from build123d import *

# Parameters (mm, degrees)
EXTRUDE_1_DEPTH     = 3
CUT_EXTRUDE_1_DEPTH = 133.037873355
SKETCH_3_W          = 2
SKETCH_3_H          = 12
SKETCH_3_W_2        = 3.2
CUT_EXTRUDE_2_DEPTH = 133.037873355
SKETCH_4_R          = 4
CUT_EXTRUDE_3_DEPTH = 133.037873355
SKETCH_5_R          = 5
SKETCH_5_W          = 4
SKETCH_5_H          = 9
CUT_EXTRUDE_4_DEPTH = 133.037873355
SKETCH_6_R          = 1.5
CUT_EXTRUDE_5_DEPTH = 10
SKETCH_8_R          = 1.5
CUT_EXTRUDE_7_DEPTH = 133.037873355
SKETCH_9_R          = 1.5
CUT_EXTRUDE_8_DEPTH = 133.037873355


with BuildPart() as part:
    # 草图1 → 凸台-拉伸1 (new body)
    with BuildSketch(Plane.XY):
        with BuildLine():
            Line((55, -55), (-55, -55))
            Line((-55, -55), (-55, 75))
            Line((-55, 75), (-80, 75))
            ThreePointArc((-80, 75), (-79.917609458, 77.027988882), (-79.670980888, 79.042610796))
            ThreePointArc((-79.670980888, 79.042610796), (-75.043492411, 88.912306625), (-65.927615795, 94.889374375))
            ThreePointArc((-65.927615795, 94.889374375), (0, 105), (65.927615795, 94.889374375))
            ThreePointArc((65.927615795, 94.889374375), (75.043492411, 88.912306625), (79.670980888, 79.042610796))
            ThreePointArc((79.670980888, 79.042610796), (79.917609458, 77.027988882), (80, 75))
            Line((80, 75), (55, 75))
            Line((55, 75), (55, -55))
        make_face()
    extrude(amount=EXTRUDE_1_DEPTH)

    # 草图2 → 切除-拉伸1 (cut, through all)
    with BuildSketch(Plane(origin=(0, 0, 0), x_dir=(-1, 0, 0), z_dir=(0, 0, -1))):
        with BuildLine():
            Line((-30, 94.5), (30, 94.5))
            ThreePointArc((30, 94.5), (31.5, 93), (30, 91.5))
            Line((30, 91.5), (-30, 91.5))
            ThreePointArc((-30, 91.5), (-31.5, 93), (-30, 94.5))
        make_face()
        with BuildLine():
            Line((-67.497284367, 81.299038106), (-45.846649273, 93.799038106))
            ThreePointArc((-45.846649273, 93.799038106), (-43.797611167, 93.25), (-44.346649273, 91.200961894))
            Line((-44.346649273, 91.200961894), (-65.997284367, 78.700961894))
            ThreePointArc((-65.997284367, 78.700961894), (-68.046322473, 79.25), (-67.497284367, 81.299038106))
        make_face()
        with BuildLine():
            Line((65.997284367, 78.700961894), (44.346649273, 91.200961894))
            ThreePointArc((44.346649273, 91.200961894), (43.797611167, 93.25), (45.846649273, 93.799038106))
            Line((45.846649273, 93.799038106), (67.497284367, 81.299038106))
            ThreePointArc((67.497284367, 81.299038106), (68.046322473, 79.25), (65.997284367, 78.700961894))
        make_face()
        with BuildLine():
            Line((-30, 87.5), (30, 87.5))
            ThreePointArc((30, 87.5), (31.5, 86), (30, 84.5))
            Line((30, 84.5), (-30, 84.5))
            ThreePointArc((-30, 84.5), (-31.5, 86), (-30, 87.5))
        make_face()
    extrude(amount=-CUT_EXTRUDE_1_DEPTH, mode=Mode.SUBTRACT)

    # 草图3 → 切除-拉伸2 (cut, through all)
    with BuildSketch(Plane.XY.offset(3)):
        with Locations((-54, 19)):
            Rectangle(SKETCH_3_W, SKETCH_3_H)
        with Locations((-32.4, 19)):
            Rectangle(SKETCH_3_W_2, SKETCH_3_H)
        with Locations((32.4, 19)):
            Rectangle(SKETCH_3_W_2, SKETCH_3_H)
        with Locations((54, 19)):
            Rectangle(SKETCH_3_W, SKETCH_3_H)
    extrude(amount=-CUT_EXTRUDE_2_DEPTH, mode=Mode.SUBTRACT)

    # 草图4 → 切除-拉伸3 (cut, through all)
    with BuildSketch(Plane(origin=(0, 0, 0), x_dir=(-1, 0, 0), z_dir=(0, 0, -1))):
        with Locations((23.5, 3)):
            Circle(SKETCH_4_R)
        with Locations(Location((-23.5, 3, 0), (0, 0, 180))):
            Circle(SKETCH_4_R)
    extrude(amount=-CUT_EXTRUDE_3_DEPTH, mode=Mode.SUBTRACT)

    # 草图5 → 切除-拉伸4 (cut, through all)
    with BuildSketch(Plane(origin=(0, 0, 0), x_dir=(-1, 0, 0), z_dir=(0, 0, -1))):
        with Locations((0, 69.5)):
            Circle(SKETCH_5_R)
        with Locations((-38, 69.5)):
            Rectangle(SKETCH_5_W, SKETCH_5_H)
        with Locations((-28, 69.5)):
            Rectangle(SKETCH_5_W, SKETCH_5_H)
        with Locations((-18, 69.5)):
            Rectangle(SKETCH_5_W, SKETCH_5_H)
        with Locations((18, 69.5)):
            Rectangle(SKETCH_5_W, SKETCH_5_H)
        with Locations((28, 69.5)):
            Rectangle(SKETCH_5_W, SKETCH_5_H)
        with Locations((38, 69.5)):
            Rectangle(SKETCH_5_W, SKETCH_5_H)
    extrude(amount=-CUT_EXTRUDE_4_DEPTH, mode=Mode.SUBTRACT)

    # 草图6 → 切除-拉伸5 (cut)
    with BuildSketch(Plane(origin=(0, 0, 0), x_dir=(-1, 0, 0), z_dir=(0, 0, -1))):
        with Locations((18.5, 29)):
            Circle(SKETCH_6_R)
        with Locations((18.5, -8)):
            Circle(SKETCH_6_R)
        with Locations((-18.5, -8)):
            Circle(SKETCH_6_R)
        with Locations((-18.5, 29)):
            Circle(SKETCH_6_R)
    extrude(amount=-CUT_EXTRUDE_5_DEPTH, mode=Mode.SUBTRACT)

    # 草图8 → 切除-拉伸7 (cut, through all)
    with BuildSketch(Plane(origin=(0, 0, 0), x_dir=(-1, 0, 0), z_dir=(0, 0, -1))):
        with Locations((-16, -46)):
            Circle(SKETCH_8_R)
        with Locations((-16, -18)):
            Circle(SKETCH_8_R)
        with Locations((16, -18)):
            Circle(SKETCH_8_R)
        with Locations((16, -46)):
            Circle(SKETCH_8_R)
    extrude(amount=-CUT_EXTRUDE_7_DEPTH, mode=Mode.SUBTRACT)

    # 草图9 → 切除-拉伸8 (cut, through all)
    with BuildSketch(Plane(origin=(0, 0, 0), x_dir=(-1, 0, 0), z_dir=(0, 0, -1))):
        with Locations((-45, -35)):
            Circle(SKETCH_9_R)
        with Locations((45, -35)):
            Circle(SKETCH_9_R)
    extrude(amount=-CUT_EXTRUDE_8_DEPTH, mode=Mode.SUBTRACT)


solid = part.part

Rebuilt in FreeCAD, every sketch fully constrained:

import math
import FreeCAD as App
import Part
import Sketcher
Q = App.Units.Quantity


def add_polygon(sketch, points):
    """Adds a closed chain of lines whose ends are joined by coincident constraints."""
    first, n = sketch.GeometryCount, len(points)
    for a, b in zip(points, points[1:] + points[:1]):
        sketch.addGeometry(Part.LineSegment(App.Vector(*a, 0), App.Vector(*b, 0)), False)
    for i in range(n):
        sketch.addConstraint(Sketcher.Constraint("Coincident", first + i, 2, first + (i + 1) % n, 1))

doc = App.newDocument("Part")
body = doc.addObject("PartDesign::Body", "Body")

# Sketch on XY plane
sketch1 = body.newObject("Sketcher::SketchObject", "Sketch")
sketch1.AttachmentSupport = (doc.getObject("XY_Plane"), [""])
sketch1.MapMode = "FlatFace"
sketch1.addGeometry([
    Part.LineSegment(App.Vector(-55, -55, 0), App.Vector(55, -55, 0)),  # 0
    Part.LineSegment(App.Vector(55, -55, 0), App.Vector(55, 75, 0)),  # 1
    Part.LineSegment(App.Vector(55, 75, 0), App.Vector(80, 75, 0)),  # 2
    Part.ArcOfCircle(Part.Circle(App.Vector(55, 75, 0), App.Vector(0, 0, 1), 25), math.radians(0), math.radians(9.305841)),  # 3
    Part.ArcOfCircle(Part.Circle(App.Vector(59.934196, 75.808522, 0), App.Vector(0, 0, 1), 20), math.radians(9.305841), math.radians(72.562157)),  # 4
    Part.ArcOfCircle(Part.Circle(App.Vector(0, -115, 0), App.Vector(0, 0, 1), 220), math.radians(72.562157), math.radians(107.437843)),  # 5
    Part.ArcOfCircle(Part.Circle(App.Vector(-59.934196, 75.808522, 0), App.Vector(0, 0, 1), 20), math.radians(107.437843), math.radians(170.694159)),  # 6
    Part.ArcOfCircle(Part.Circle(App.Vector(-55, 75, 0), App.Vector(0, 0, 1), 25), math.radians(170.694159), math.radians(180)),  # 7
    Part.LineSegment(App.Vector(-80, 75, 0), App.Vector(-55, 75, 0)),  # 8
    Part.LineSegment(App.Vector(-55, 75, 0), App.Vector(-55, -55, 0)),  # 9
], False)
sketch1.addConstraint([
    Sketcher.Constraint("Coincident", 0, 2, 1, 1),
    Sketcher.Constraint("Coincident", 1, 2, 2, 1),
    Sketcher.Constraint("Coincident", 2, 2, 3, 1),
    Sketcher.Constraint("Tangent", 3, 2, 4, 1),
    Sketcher.Constraint("Tangent", 4, 2, 5, 1),
    Sketcher.Constraint("Tangent", 5, 2, 6, 1),
    Sketcher.Constraint("Tangent", 6, 2, 7, 1),
    Sketcher.Constraint("Coincident", 7, 2, 8, 1),
    Sketcher.Constraint("Coincident", 8, 2, 9, 1),
    Sketcher.Constraint("Coincident", 9, 2, 0, 1),
    Sketcher.Constraint("Horizontal", 0),
    Sketcher.Constraint("Vertical", 1),
    Sketcher.Constraint("Horizontal", 2),
    Sketcher.Constraint("Horizontal", 8),
    Sketcher.Constraint("Vertical", 9),
    Sketcher.Constraint("Coincident", 1, 2, 3, 3),
    Sketcher.Constraint("Coincident", 8, 2, 7, 3),
    Sketcher.Constraint("Equal", 4, 6),
    Sketcher.Constraint("Equal", 3, 7),
    Sketcher.Constraint("Symmetric", 4, 3, 6, 3, -2),
    Sketcher.Constraint("Horizontal", 3, 3, 7, 3),
    Sketcher.Constraint("Radius", 3, Q("25 mm")),
    Sketcher.Constraint("Radius", 4, Q("20 mm")),
    Sketcher.Constraint("Radius", 5, Q("220 mm")),
    Sketcher.Constraint("DistanceX", 0, 1, 0, 2, Q("110 mm")),
    Sketcher.Constraint("DistanceY", 1, 1, 1, 2, Q("130 mm")),
    Sketcher.Constraint("DistanceY", -1, 1, 3, 3, Q("75 mm")),
    Sketcher.Constraint("DistanceY", 5, 3, -1, 1, Q("115 mm")),
])
pad1 = body.newObject("PartDesign::Pad", "Pad")
pad1.Profile = sketch1
pad1.Length = 3

# Sketch on XY plane
sketch2 = body.newObject("Sketcher::SketchObject", "Sketch001")
sketch2.AttachmentSupport = (doc.getObject("XY_Plane"), [""])
sketch2.MapMode = "FlatFace"
sketch2.addGeometry([
    Part.LineSegment(App.Vector(-30, 94.5, 0), App.Vector(30, 94.5, 0)),  # 0
    Part.ArcOfCircle(Part.Circle(App.Vector(30, 93, 0), App.Vector(0, 0, 1), 1.5), math.radians(-90), math.radians(90)),  # 1
    Part.LineSegment(App.Vector(30, 91.5, 0), App.Vector(-30, 91.5, 0)),  # 2
    Part.ArcOfCircle(Part.Circle(App.Vector(-30, 93, 0), App.Vector(0, 0, 1), 1.5), math.radians(90), math.radians(270)),  # 3
    Part.LineSegment(App.Vector(45.846649, 93.799038, 0), App.Vector(67.497284, 81.299038, 0)),  # 4
    Part.ArcOfCircle(Part.Circle(App.Vector(66.747284, 80, 0), App.Vector(0, 0, 1), 1.5), math.radians(-120), math.radians(60)),  # 5
    Part.LineSegment(App.Vector(65.997284, 78.700962, 0), App.Vector(44.346649, 91.200962, 0)),  # 6
    Part.ArcOfCircle(Part.Circle(App.Vector(45.096649, 92.5, 0), App.Vector(0, 0, 1), 1.5), math.radians(60), math.radians(240)),  # 7
    Part.LineSegment(App.Vector(-44.346649, 91.200962, 0), App.Vector(-65.997284, 78.700962, 0)),  # 8
    Part.ArcOfCircle(Part.Circle(App.Vector(-66.747284, 80, 0), App.Vector(0, 0, 1), 1.5), math.radians(120), math.radians(300)),  # 9
    Part.LineSegment(App.Vector(-67.497284, 81.299038, 0), App.Vector(-45.846649, 93.799038, 0)),  # 10
    Part.ArcOfCircle(Part.Circle(App.Vector(-45.096649, 92.5, 0), App.Vector(0, 0, 1), 1.5), math.radians(-60), math.radians(120)),  # 11
    Part.LineSegment(App.Vector(-30, 87.5, 0), App.Vector(30, 87.5, 0)),  # 12
    Part.ArcOfCircle(Part.Circle(App.Vector(30, 86, 0), App.Vector(0, 0, 1), 1.5), math.radians(-90), math.radians(90)),  # 13
    Part.LineSegment(App.Vector(30, 84.5, 0), App.Vector(-30, 84.5, 0)),  # 14
    Part.ArcOfCircle(Part.Circle(App.Vector(-30, 86, 0), App.Vector(0, 0, 1), 1.5), math.radians(90), math.radians(270)),  # 15
], False)
sketch2.addConstraint([
    Sketcher.Constraint("Tangent", 0, 2, 1, 2),
    Sketcher.Constraint("Tangent", 1, 1, 2, 1),
    Sketcher.Constraint("Tangent", 2, 2, 3, 2),
    Sketcher.Constraint("Tangent", 3, 1, 0, 1),
    Sketcher.Constraint("Tangent", 4, 2, 5, 2),
    Sketcher.Constraint("Tangent", 5, 1, 6, 1),
    Sketcher.Constraint("Tangent", 6, 2, 7, 2),
    Sketcher.Constraint("Tangent", 7, 1, 4, 1),
    Sketcher.Constraint("Tangent", 8, 2, 9, 2),
    Sketcher.Constraint("Tangent", 9, 1, 10, 1),
    Sketcher.Constraint("Tangent", 10, 2, 11, 2),
    Sketcher.Constraint("Tangent", 11, 1, 8, 1),
    Sketcher.Constraint("Tangent", 12, 2, 13, 2),
    Sketcher.Constraint("Tangent", 13, 1, 14, 1),
    Sketcher.Constraint("Tangent", 14, 2, 15, 2),
    Sketcher.Constraint("Tangent", 15, 1, 12, 1),
    Sketcher.Constraint("Horizontal", 0),
    Sketcher.Constraint("Horizontal", 2),
    Sketcher.Constraint("Horizontal", 12),
    Sketcher.Constraint("Horizontal", 14),
    Sketcher.Constraint("Equal", 3, 5),
    Sketcher.Constraint("Equal", 5, 7),
    Sketcher.Constraint("Equal", 7, 9),
    Sketcher.Constraint("Equal", 9, 11),
    Sketcher.Constraint("Equal", 11, 13),
    Sketcher.Constraint("Symmetric", 5, 3, 9, 3, -2),
    Sketcher.Constraint("Symmetric", 7, 3, 11, 3, -2),
    Sketcher.Constraint("Vertical", 1, 3, 13, 3),
    Sketcher.Constraint("Vertical", 3, 3, 15, 3),
    Sketcher.Constraint("Radius", 1, Q("1.5 mm")),
    Sketcher.Constraint("DistanceX", 0, 1, 0, 2, Q("60 mm")),
    Sketcher.Constraint("Angle", 4, Q("-30 deg")),
    Sketcher.Constraint("Distance", 4, Q("25 mm")),
    Sketcher.Constraint("DistanceX", -1, 1, 1, 3, Q("30 mm")),
    Sketcher.Constraint("DistanceY", -1, 1, 1, 3, Q("93 mm")),
    Sketcher.Constraint("DistanceY", -1, 1, 5, 3, Q("80 mm")),
    Sketcher.Constraint("DistanceY", -1, 1, 13, 3, Q("86 mm")),
    Sketcher.Constraint("DistanceX", 11, 3, 7, 3, Q("90.193299 mm")),
])
pocket1 = body.newObject("PartDesign::Pocket", "Pocket")
pocket1.Profile = sketch2
pocket1.Type = "ThroughAll"
pocket1.Reversed = True

# Sketch on XY plane
sketch3 = body.newObject("Sketcher::SketchObject", "Sketch002")
sketch3.AttachmentSupport = (doc.getObject("XY_Plane"), [""])
sketch3.MapMode = "FlatFace"
sketch3.AttachmentOffset = App.Placement(App.Vector(0, 0, 3), App.Rotation())
add_polygon(sketch3, [(-55, 25), (-55, 13), (-53, 13), (-53, 25)])  # lines 0-3
add_polygon(sketch3, [(-34, 25), (-34, 13), (-30.8, 13), (-30.8, 25)])  # lines 4-7
add_polygon(sketch3, [(30.8, 25), (30.8, 13), (34, 13), (34, 25)])  # lines 8-11
add_polygon(sketch3, [(53, 25), (53, 13), (55, 13), (55, 25)])  # lines 12-15
sketch3.addConstraint([
    Sketcher.Constraint("Vertical", 0),
    Sketcher.Constraint("Horizontal", 1),
    Sketcher.Constraint("Vertical", 2),
    Sketcher.Constraint("Horizontal", 3),
    Sketcher.Constraint("Vertical", 4),
    Sketcher.Constraint("Horizontal", 5),
    Sketcher.Constraint("Vertical", 6),
    Sketcher.Constraint("Horizontal", 7),
    Sketcher.Constraint("Vertical", 8),
    Sketcher.Constraint("Horizontal", 9),
    Sketcher.Constraint("Vertical", 10),
    Sketcher.Constraint("Horizontal", 11),
    Sketcher.Constraint("Vertical", 12),
    Sketcher.Constraint("Horizontal", 13),
    Sketcher.Constraint("Vertical", 14),
    Sketcher.Constraint("Horizontal", 15),
    Sketcher.Constraint("Symmetric", 5, 2, 8, 2, -2),
    Sketcher.Constraint("Symmetric", 7, 2, 10, 2, -2),
    Sketcher.Constraint("Symmetric", 1, 2, 12, 2, -2),
    Sketcher.Constraint("Symmetric", 3, 2, 14, 2, -2),
    Sketcher.Constraint("Horizontal", 1, 2, 4, 2),
    Sketcher.Constraint("Horizontal", 3, 2, 6, 2),
    Sketcher.Constraint("DistanceX", 1, 1, 1, 2, Q("2 mm")),
    Sketcher.Constraint("DistanceY", 0, 2, 0, 1, Q("12 mm")),
    Sketcher.Constraint("DistanceX", 5, 1, 5, 2, Q("3.2 mm")),
    Sketcher.Constraint("DistanceX", 0, 2, -1, 1, Q("55 mm")),
    Sketcher.Constraint("DistanceY", -1, 1, 0, 2, Q("13 mm")),
    Sketcher.Constraint("DistanceX", 4, 2, -1, 1, Q("34 mm")),
])
pocket2 = body.newObject("PartDesign::Pocket", "Pocket001")
pocket2.Profile = sketch3
pocket2.Type = "ThroughAll"

# Sketch on XY plane
sketch4 = body.newObject("Sketcher::SketchObject", "Sketch003")
sketch4.AttachmentSupport = (doc.getObject("XY_Plane"), [""])
sketch4.MapMode = "FlatFace"
sketch4.addGeometry([
    Part.Circle(App.Vector(-23.5, 3, 0), App.Vector(0, 0, 1), 4),
    Part.Circle(App.Vector(23.5, 3, 0), App.Vector(0, 0, 1), 4),
], False)
sketch4.addConstraint([
    Sketcher.Constraint("Equal", 0, 1),
    Sketcher.Constraint("Symmetric", 0, 3, 1, 3, -2),
    Sketcher.Constraint("Diameter", 0, Q("8 mm")),
    Sketcher.Constraint("DistanceY", -1, 1, 0, 3, Q("3 mm")),
    Sketcher.Constraint("DistanceX", 0, 3, 1, 3, Q("47 mm")),
])
pocket3 = body.newObject("PartDesign::Pocket", "Pocket002")
pocket3.Profile = sketch4
pocket3.Type = "ThroughAll"
pocket3.Reversed = True

# Sketch on XY plane
sketch5 = body.newObject("Sketcher::SketchObject", "Sketch004")
sketch5.AttachmentSupport = (doc.getObject("XY_Plane"), [""])
sketch5.MapMode = "FlatFace"
sketch5.addGeometry(Part.Circle(App.Vector(0, 69.5, 0), App.Vector(0, 0, 1), 5), False)  # 0
add_polygon(sketch5, [(40, 74), (40, 65), (36, 65), (36, 74)])  # lines 1-4
add_polygon(sketch5, [(30, 74), (30, 65), (26, 65), (26, 74)])  # lines 5-8
add_polygon(sketch5, [(20, 74), (20, 65), (16, 65), (16, 74)])  # lines 9-12
add_polygon(sketch5, [(-16, 74), (-16, 65), (-20, 65), (-20, 74)])  # lines 13-16
add_polygon(sketch5, [(-26, 74), (-26, 65), (-30, 65), (-30, 74)])  # lines 17-20
add_polygon(sketch5, [(-36, 74), (-36, 65), (-40, 65), (-40, 74)])  # lines 21-24
sketch5.addConstraint([
    Sketcher.Constraint("Vertical", 1),
    Sketcher.Constraint("Horizontal", 2),
    Sketcher.Constraint("Vertical", 3),
    Sketcher.Constraint("Horizontal", 4),
    Sketcher.Constraint("Vertical", 5),
    Sketcher.Constraint("Horizontal", 6),
    Sketcher.Constraint("Vertical", 7),
    Sketcher.Constraint("Horizontal", 8),
    Sketcher.Constraint("Vertical", 9),
    Sketcher.Constraint("Horizontal", 10),
    Sketcher.Constraint("Vertical", 11),
    Sketcher.Constraint("Horizontal", 12),
    Sketcher.Constraint("Vertical", 13),
    Sketcher.Constraint("Horizontal", 14),
    Sketcher.Constraint("Vertical", 15),
    Sketcher.Constraint("Horizontal", 16),
    Sketcher.Constraint("Vertical", 17),
    Sketcher.Constraint("Horizontal", 18),
    Sketcher.Constraint("Vertical", 19),
    Sketcher.Constraint("Horizontal", 20),
    Sketcher.Constraint("Vertical", 21),
    Sketcher.Constraint("Horizontal", 22),
    Sketcher.Constraint("Vertical", 23),
    Sketcher.Constraint("Horizontal", 24),
    Sketcher.Constraint("Symmetric", 10, 2, 13, 2, -2),
    Sketcher.Constraint("Symmetric", 12, 2, 15, 2, -2),
    Sketcher.Constraint("Symmetric", 6, 2, 17, 2, -2),
    Sketcher.Constraint("Symmetric", 8, 2, 19, 2, -2),
    Sketcher.Constraint("Symmetric", 2, 2, 21, 2, -2),
    Sketcher.Constraint("Symmetric", 4, 2, 23, 2, -2),
    Sketcher.Constraint("PointOnObject", 0, 3, -2),
    Sketcher.Constraint("Horizontal", 2, 2, 5, 2),
    Sketcher.Constraint("Horizontal", 4, 2, 7, 2),
    Sketcher.Constraint("Horizontal", 6, 2, 9, 2),
    Sketcher.Constraint("Horizontal", 8, 2, 11, 2),
    Sketcher.Constraint("Equal", 4, 6),
    Sketcher.Constraint("Equal", 8, 10),
    Sketcher.Constraint("Diameter", 0, Q("10 mm")),
    Sketcher.Constraint("DistanceX", 2, 2, 2, 1, Q("4 mm")),
    Sketcher.Constraint("DistanceY", 1, 2, 1, 1, Q("9 mm")),
    Sketcher.Constraint("DistanceX", -1, 1, 1, 2, Q("40 mm")),
    Sketcher.Constraint("DistanceY", -1, 1, 1, 2, Q("65 mm")),
    Sketcher.Constraint("DistanceX", -1, 1, 5, 2, Q("30 mm")),
    Sketcher.Constraint("DistanceX", -1, 1, 9, 2, Q("20 mm")),
    Sketcher.Constraint("DistanceY", -1, 1, 0, 3, Q("69.5 mm")),
])
pocket4 = body.newObject("PartDesign::Pocket", "Pocket003")
pocket4.Profile = sketch5
pocket4.Type = "ThroughAll"
pocket4.Reversed = True

# Sketch on XY plane
sketch6 = body.newObject("Sketcher::SketchObject", "Sketch005")
sketch6.AttachmentSupport = (doc.getObject("XY_Plane"), [""])
sketch6.MapMode = "FlatFace"
sketch6.addGeometry([
    Part.Circle(App.Vector(-18.5, 29, 0), App.Vector(0, 0, 1), 1.5),
    Part.Circle(App.Vector(-18.5, -8, 0), App.Vector(0, 0, 1), 1.5),
    Part.Circle(App.Vector(18.5, -8, 0), App.Vector(0, 0, 1), 1.5),
    Part.Circle(App.Vector(18.5, 29, 0), App.Vector(0, 0, 1), 1.5),
], False)
sketch6.addConstraint([
    Sketcher.Constraint("Equal", 0, 1),
    Sketcher.Constraint("Equal", 1, 2),
    Sketcher.Constraint("Equal", 2, 3),
    Sketcher.Constraint("Symmetric", 1, 3, 2, 3, -2),
    Sketcher.Constraint("Symmetric", 0, 3, 3, 3, -2),
    Sketcher.Constraint("Vertical", 0, 3, 1, 3),
    Sketcher.Constraint("Diameter", 0, Q("3 mm")),
    Sketcher.Constraint("DistanceY", -1, 1, 0, 3, Q("29 mm")),
    Sketcher.Constraint("DistanceY", 1, 3, -1, 1, Q("8 mm")),
    Sketcher.Constraint("DistanceX", 1, 3, 2, 3, Q("37 mm")),
])
pocket5 = body.newObject("PartDesign::Pocket", "Pocket004")
pocket5.Profile = sketch6
pocket5.Length = 10
pocket5.Reversed = True

# Sketch on XY plane
sketch7 = body.newObject("Sketcher::SketchObject", "Sketch006")
sketch7.AttachmentSupport = (doc.getObject("XY_Plane"), [""])
sketch7.MapMode = "FlatFace"
sketch7.addGeometry([
    Part.Circle(App.Vector(16, -46, 0), App.Vector(0, 0, 1), 1.5),
    Part.Circle(App.Vector(16, -18, 0), App.Vector(0, 0, 1), 1.5),
    Part.Circle(App.Vector(-16, -18, 0), App.Vector(0, 0, 1), 1.5),
    Part.Circle(App.Vector(-16, -46, 0), App.Vector(0, 0, 1), 1.5),
], False)
sketch7.addConstraint([
    Sketcher.Constraint("Equal", 0, 1),
    Sketcher.Constraint("Equal", 1, 2),
    Sketcher.Constraint("Equal", 2, 3),
    Sketcher.Constraint("Symmetric", 1, 3, 2, 3, -2),
    Sketcher.Constraint("Symmetric", 0, 3, 3, 3, -2),
    Sketcher.Constraint("Vertical", 0, 3, 1, 3),
    Sketcher.Constraint("Diameter", 0, Q("3 mm")),
    Sketcher.Constraint("DistanceX", -1, 1, 0, 3, Q("16 mm")),
    Sketcher.Constraint("DistanceY", 0, 3, -1, 1, Q("46 mm")),
    Sketcher.Constraint("DistanceY", 1, 3, -1, 1, Q("18 mm")),
])
pocket6 = body.newObject("PartDesign::Pocket", "Pocket005")
pocket6.Profile = sketch7
pocket6.Type = "ThroughAll"
pocket6.Reversed = True

# Sketch on XY plane
sketch8 = body.newObject("Sketcher::SketchObject", "Sketch007")
sketch8.AttachmentSupport = (doc.getObject("XY_Plane"), [""])
sketch8.MapMode = "FlatFace"
sketch8.addGeometry([
    Part.Circle(App.Vector(45, -35, 0), App.Vector(0, 0, 1), 1.5),
    Part.Circle(App.Vector(-45, -35, 0), App.Vector(0, 0, 1), 1.5),
], False)
sketch8.addConstraint([
    Sketcher.Constraint("Equal", 0, 1),
    Sketcher.Constraint("Symmetric", 0, 3, 1, 3, -2),
    Sketcher.Constraint("Diameter", 0, Q("3 mm")),
    Sketcher.Constraint("DistanceX", -1, 1, 0, 3, Q("45 mm")),
    Sketcher.Constraint("DistanceY", 0, 3, -1, 1, Q("35 mm")),
])
pocket7 = body.newObject("PartDesign::Pocket", "Pocket006")
pocket7.Profile = sketch8
pocket7.Type = "ThroughAll"
pocket7.Reversed = True

doc.recompute()
